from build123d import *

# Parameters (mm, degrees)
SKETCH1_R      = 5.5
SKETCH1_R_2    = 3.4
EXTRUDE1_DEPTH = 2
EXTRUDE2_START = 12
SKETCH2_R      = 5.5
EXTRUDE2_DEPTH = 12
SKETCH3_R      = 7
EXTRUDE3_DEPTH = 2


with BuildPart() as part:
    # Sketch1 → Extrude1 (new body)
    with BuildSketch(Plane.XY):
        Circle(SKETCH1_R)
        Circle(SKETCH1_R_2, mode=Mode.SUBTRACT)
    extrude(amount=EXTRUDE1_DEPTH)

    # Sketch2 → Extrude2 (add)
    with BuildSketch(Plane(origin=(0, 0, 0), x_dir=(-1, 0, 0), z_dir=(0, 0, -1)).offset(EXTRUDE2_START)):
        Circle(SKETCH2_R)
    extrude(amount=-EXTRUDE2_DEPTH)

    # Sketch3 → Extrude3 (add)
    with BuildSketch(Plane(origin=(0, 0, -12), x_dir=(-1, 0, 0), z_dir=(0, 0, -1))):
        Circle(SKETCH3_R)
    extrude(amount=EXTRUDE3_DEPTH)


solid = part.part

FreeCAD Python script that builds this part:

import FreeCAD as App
import Part
import Sketcher
from FreeCAD import Vector

doc = App.newDocument("Part")
params = doc.addObject("Spreadsheet::Sheet", "Params")
for row, (alias, value) in enumerate([
    ("sketch1_diameter", "11 mm"),
    ("sketch1_diameter2", "6.8 mm"),
    ("pad1_length", "2 mm"),
    ("sketch2_diameter", "11 mm"),
    ("pad2_length", "12 mm"),
    ("sketch3_diameter", "14 mm"),
    ("pad3_length", "2 mm"),
], start=1):
    params.set(f"A{row}", alias)
    params.set(f"B{row}", "=" + value)
    params.setAlias(f"B{row}", alias)

body = doc.addObject("PartDesign::Body", "Body")

sketch1 = doc.addObject("Sketcher::SketchObject", "Sketch")
body.addObject(sketch1)
sketch1.AttachmentSupport = (doc.XY_Plane, [""])
sketch1.MapMode = "FlatFace"
sketch1.addGeometry([
    Part.Circle(Vector(0, 0, 0), Vector(0, 0, 1), 5.5),
    Part.Circle(Vector(0, 0, 0), Vector(0, 0, 1), 3.4),
], False)
sketch1.addConstraint([
    Sketcher.Constraint("Coincident", 0, 3, -1, 1),
    Sketcher.Constraint("Coincident", 1, 3, -1, 1),
    Sketcher.Constraint("Diameter", 0, 11.0),
    Sketcher.Constraint("Diameter", 1, 6.8),
])
sketch1.setExpression("Constraints[2]", "Params.sketch1_diameter")
sketch1.setExpression("Constraints[3]", "Params.sketch1_diameter2")
pad1 = doc.addObject("PartDesign::Pad", "Pad")
body.addObject(pad1)
pad1.Profile = sketch1
pad1.setExpression("Length", "Params.pad1_length")

sketch2 = doc.addObject("Sketcher::SketchObject", "Sketch001")
body.addObject(sketch2)
sketch2.AttachmentSupport = (doc.XY_Plane, [""])
sketch2.MapMode = "FlatFace"
sketch2.AttachmentOffset = App.Placement(Vector(0, 0, -12), App.Rotation())
sketch2.addGeometry(Part.Circle(Vector(0, 0, 0), Vector(0, 0, 1), 6), False)
sketch2.addConstraint([
    Sketcher.Constraint("Coincident", 0, 3, -1, 1),
    Sketcher.Constraint("Diameter", 0, 11.0),
])
sketch2.setExpression("Constraints[1]", "Params.sketch2_diameter")
pad2 = doc.addObject("PartDesign::Pad", "Pad001")
body.addObject(pad2)
pad2.Profile = sketch2
pad2.setExpression("Length", "Params.pad2_length")

sketch3 = doc.addObject("Sketcher::SketchObject", "Sketch002")
body.addObject(sketch3)
sketch3.AttachmentSupport = (doc.XY_Plane, [""])
sketch3.MapMode = "FlatFace"
sketch3.AttachmentOffset = App.Placement(Vector(0, 0, -12), App.Rotation())
sketch3.addGeometry(Part.Circle(Vector(0, 0, 0), Vector(0, 0, 1), 7), False)
sketch3.addConstraint([
    Sketcher.Constraint("Coincident", 0, 3, -1, 1),
    Sketcher.Constraint("Diameter", 0, 14.0),
])
sketch3.setExpression("Constraints[1]", "Params.sketch3_diameter")
pad3 = doc.addObject("PartDesign::Pad", "Pad002")
body.addObject(pad3)
pad3.Profile = sketch3
pad3.setExpression("Length", "Params.pad3_length")
pad3.Reversed = True

doc.recompute()
